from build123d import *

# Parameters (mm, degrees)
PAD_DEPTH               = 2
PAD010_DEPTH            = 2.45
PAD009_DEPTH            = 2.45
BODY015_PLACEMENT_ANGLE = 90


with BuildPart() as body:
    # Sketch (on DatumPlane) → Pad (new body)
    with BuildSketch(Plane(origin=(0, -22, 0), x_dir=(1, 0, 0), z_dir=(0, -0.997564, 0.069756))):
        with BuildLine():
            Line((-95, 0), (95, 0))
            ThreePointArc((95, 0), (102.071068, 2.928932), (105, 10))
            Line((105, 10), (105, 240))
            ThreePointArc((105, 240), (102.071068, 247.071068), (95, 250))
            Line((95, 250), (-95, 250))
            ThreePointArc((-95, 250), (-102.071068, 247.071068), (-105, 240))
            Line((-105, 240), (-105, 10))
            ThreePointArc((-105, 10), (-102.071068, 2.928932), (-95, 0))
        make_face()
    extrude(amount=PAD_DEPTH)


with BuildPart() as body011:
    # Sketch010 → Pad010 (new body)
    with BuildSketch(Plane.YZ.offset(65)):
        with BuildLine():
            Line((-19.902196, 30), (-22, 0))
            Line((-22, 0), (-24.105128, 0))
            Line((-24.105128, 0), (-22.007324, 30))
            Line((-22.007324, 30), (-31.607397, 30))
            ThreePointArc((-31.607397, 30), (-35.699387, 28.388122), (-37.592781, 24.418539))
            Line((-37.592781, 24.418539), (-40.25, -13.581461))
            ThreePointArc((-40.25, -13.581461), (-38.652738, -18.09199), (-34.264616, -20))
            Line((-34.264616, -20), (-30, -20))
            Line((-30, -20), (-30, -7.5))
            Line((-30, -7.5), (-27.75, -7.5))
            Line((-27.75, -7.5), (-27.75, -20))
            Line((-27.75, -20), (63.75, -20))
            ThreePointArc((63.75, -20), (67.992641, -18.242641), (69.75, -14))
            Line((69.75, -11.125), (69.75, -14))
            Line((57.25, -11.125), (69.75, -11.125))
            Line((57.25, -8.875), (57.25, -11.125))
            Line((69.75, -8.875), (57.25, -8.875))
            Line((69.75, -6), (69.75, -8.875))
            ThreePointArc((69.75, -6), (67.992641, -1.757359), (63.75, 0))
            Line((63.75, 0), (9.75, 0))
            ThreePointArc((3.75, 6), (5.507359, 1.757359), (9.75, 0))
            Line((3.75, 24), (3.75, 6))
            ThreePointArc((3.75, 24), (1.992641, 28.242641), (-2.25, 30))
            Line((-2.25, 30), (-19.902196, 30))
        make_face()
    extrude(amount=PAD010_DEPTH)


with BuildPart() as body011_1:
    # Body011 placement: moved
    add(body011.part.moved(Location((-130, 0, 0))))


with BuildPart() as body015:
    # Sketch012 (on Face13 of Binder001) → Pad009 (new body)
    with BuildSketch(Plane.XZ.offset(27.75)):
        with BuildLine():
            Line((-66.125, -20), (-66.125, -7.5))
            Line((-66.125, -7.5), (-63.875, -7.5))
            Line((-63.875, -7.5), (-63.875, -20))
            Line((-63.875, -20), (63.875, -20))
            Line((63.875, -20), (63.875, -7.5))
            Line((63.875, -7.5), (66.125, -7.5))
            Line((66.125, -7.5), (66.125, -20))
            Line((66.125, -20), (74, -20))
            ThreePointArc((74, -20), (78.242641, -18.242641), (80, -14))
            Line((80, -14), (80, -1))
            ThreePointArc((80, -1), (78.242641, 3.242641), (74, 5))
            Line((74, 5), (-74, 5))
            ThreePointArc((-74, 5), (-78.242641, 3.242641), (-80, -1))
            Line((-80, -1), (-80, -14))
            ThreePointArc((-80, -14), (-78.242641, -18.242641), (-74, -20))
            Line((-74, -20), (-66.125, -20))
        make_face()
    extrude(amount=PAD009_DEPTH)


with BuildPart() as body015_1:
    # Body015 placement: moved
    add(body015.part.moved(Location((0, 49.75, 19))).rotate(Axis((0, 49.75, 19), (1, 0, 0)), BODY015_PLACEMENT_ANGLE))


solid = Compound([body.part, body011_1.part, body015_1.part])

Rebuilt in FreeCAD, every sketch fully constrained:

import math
import FreeCAD as App
import Part
import Sketcher
from FreeCAD import Vector
Q = App.Units.Quantity

doc = App.newDocument("Part")
body = doc.addObject("PartDesign::Body", "Body")

sketch1 = body.newObject("Sketcher::SketchObject", "Sketch")
sketch1.Placement = App.Placement(Vector(0, -22, 0), App.Rotation(Vector(1, 0, 0), Vector(0, 0.069756006, 0.997564083), Vector(0, -0.997564083, 0.069756006), "ZXY"))
sketch1.addGeometry(Part.LineSegment(Vector(-95, 0, 0), Vector(95, 0, 0)), False)
sketch1.addGeometry(Part.ArcOfCircle(Part.Circle(Vector(95, 10, 0), Vector(0, 0, 1), 10), math.radians(-90), math.radians(0)), False)
sketch1.addGeometry(Part.LineSegment(Vector(105, 10, 0), Vector(105, 240, 0)), False)
sketch1.addGeometry(Part.ArcOfCircle(Part.Circle(Vector(95, 240, 0), Vector(0, 0, 1), 10), math.radians(0), math.radians(90)), False)
sketch1.addGeometry(Part.LineSegment(Vector(95, 250, 0), Vector(-95, 250, 0)), False)
sketch1.addGeometry(Part.ArcOfCircle(Part.Circle(Vector(-95, 240, 0), Vector(0, 0, 1), 10), math.radians(90), math.radians(180)), False)
sketch1.addGeometry(Part.LineSegment(Vector(-105, 240, 0), Vector(-105, 10, 0)), False)
sketch1.addGeometry(Part.ArcOfCircle(Part.Circle(Vector(-95, 10, 0), Vector(0, 0, 1), 10), math.radians(180), math.radians(270)), False)
sketch1.addConstraint(Sketcher.Constraint("Tangent", 0, 2, 1, 1))
sketch1.addConstraint(Sketcher.Constraint("Tangent", 1, 2, 2, 1))
sketch1.addConstraint(Sketcher.Constraint("Tangent", 2, 2, 3, 1))
sketch1.addConstraint(Sketcher.Constraint("Tangent", 3, 2, 4, 1))
sketch1.addConstraint(Sketcher.Constraint("Tangent", 4, 2, 5, 1))
sketch1.addConstraint(Sketcher.Constraint("Tangent", 5, 2, 6, 1))
sketch1.addConstraint(Sketcher.Constraint("Tangent", 6, 2, 7, 1))
sketch1.addConstraint(Sketcher.Constraint("Tangent", 7, 2, 0, 1))
sketch1.addConstraint(Sketcher.Constraint("Horizontal", 0))
sketch1.addConstraint(Sketcher.Constraint("Vertical", 2))
sketch1.addConstraint(Sketcher.Constraint("Horizontal", 4))
sketch1.addConstraint(Sketcher.Constraint("Vertical", 6))
sketch1.addConstraint(Sketcher.Constraint("Equal", 1, 3))
sketch1.addConstraint(Sketcher.Constraint("Equal", 3, 5))
sketch1.addConstraint(Sketcher.Constraint("Equal", 5, 7))
sketch1.addConstraint(Sketcher.Constraint("Symmetric", 0, 2, 7, 2, -1, 1))
sketch1.addConstraint(Sketcher.Constraint("Radius", 1, Q("9.999999 mm")))
sketch1.addConstraint(Sketcher.Constraint("DistanceX", 0, 1, 0, 2, Q("190 mm")))
sketch1.addConstraint(Sketcher.Constraint("DistanceY", 2, 1, 2, 2, Q("230 mm")))
pad1 = body.newObject("PartDesign::Pad", "Pad")
pad1.Profile = sketch1
pad1.Length = 2
body2 = doc.addObject("PartDesign::Body", "Body001")

sketch2 = body2.newObject("Sketcher::SketchObject", "Sketch001")
sketch2.AttachmentSupport = (doc.getObject("YZ_Plane001"), [""])
sketch2.MapMode = "FlatFace"
sketch2.AttachmentOffset = App.Placement(Vector(0, 0, 65), App.Rotation())
sketch2.addGeometry(Part.LineSegment(Vector(-19.9, 30, 0), Vector(-22, 0, 0)), False)
sketch2.addGeometry(Part.LineSegment(Vector(-22, 0, 0), Vector(-24.1, 0, 0)), False)
sketch2.addGeometry(Part.LineSegment(Vector(-24.1, 0, 0), Vector(-22, 30, 0)), False)
sketch2.addGeometry(Part.LineSegment(Vector(-22, 30, 0), Vector(-31.6, 30, 0)), False)
sketch2.addGeometry(Part.ArcOfCircle(Part.Circle(Vector(-31.6, 24, 0), Vector(0, 0, 1), 6), math.radians(90), math.radians(176)), False)
sketch2.addGeometry(Part.LineSegment(Vector(-37.6, 24.4, 0), Vector(-40.2, -13.6, 0)), False)
sketch2.addGeometry(Part.ArcOfCircle(Part.Circle(Vector(-34.3, -14, 0), Vector(0, 0, 1), 6), math.radians(176), math.radians(270)), False)
sketch2.addGeometry(Part.LineSegment(Vector(-34.3, -20, 0), Vector(-30, -20, 0)), False)
sketch2.addGeometry(Part.LineSegment(Vector(-30, -20, 0), Vector(-30, -7.5, 0)), False)
sketch2.addGeometry(Part.LineSegment(Vector(-30, -7.5, 0), Vector(-27.8, -7.5, 0)), False)
sketch2.addGeometry(Part.LineSegment(Vector(-27.8, -7.5, 0), Vector(-27.8, -20, 0)), False)
sketch2.addGeometry(Part.LineSegment(Vector(-27.8, -20, 0), Vector(63.8, -20, 0)), False)
sketch2.addGeometry(Part.ArcOfCircle(Part.Circle(Vector(63.8, -14, 0), Vector(0, 0, 1), 6), math.radians(-90), math.radians(0)), False)
sketch2.addGeometry(Part.LineSegment(Vector(69.8, -14, 0), Vector(69.8, -11.1, 0)), False)
sketch2.addGeometry(Part.LineSegment(Vector(69.8, -11.1, 0), Vector(57.2, -11.1, 0)), False)
sketch2.addGeometry(Part.LineSegment(Vector(57.2, -11.1, 0), Vector(57.2, -8.9, 0)), False)
sketch2.addGeometry(Part.LineSegment(Vector(57.2, -8.9, 0), Vector(69.8, -8.9, 0)), False)
sketch2.addGeometry(Part.LineSegment(Vector(69.8, -8.9, 0), Vector(69.8, -6, 0)), False)
sketch2.addGeometry(Part.ArcOfCircle(Part.Circle(Vector(63.8, -6, 0), Vector(0, 0, 1), 6), math.radians(0), math.radians(90)), False)
sketch2.addGeometry(Part.LineSegment(Vector(63.8, 0, 0), Vector(9.8, 0, 0)), False)
sketch2.addGeometry(Part.ArcOfCircle(Part.Circle(Vector(9.7, 6, 0), Vector(0, 0, 1), 6), math.radians(180), math.radians(270)), False)
sketch2.addGeometry(Part.LineSegment(Vector(3.8, 6, 0), Vector(3.8, 24, 0)), False)
sketch2.addGeometry(Part.ArcOfCircle(Part.Circle(Vector(-2.2, 24, 0), Vector(0, 0, 1), 6), math.radians(0), math.radians(90)), False)
sketch2.addGeometry(Part.LineSegment(Vector(-2.2, 30, 0), Vector(-19.9, 30, 0)), False)
sketch2.addConstraint(Sketcher.Constraint("Coincident", 0, 2, 1, 1))
sketch2.addConstraint(Sketcher.Constraint("Coincident", 1, 2, 2, 1))
sketch2.addConstraint(Sketcher.Constraint("Coincident", 2, 2, 3, 1))
sketch2.addConstraint(Sketcher.Constraint("Tangent", 3, 2, 4, 1))
sketch2.addConstraint(Sketcher.Constraint("Tangent", 4, 2, 5, 1))
sketch2.addConstraint(Sketcher.Constraint("Tangent", 5, 2, 6, 1))
sketch2.addConstraint(Sketcher.Constraint("Tangent", 6, 2, 7, 1))
sketch2.addConstraint(Sketcher.Constraint("Coincident", 7, 2, 8, 1))
sketch2.addConstraint(Sketcher.Constraint("Coincident", 8, 2, 9, 1))
sketch2.addConstraint(Sketcher.Constraint("Coincident", 9, 2, 10, 1))
sketch2.addConstraint(Sketcher.Constraint("Coincident", 10, 2, 11, 1))
sketch2.addConstraint(Sketcher.Constraint("Tangent", 11, 2, 12, 1))
sketch2.addConstraint(Sketcher.Constraint("Tangent", 12, 2, 13, 1))
sketch2.addConstraint(Sketcher.Constraint("Coincident", 13, 2, 14, 1))
sketch2.addConstraint(Sketcher.Constraint("Coincident", 14, 2, 15, 1))
sketch2.addConstraint(Sketcher.Constraint("Coincident", 15, 2, 16, 1))
sketch2.addConstraint(Sketcher.Constraint("Coincident", 16, 2, 17, 1))
sketch2.addConstraint(Sketcher.Constraint("Tangent", 17, 2, 18, 1))
sketch2.addConstraint(Sketcher.Constraint("Tangent", 18, 2, 19, 1))
sketch2.addConstraint(Sketcher.Constraint("Tangent", 19, 2, 20, 2))
sketch2.addConstraint(Sketcher.Constraint("Tangent", 20, 1, 21, 1))
sketch2.addConstraint(Sketcher.Constraint("Tangent", 21, 2, 22, 1))
sketch2.addConstraint(Sketcher.Constraint("Tangent", 22, 2, 23, 1))
sketch2.addConstraint(Sketcher.Constraint("Coincident", 23, 2, 0, 1))
sketch2.addConstraint(Sketcher.Constraint("Horizontal", 1))
sketch2.addConstraint(Sketcher.Constraint("Horizontal", 3))
sketch2.addConstraint(Sketcher.Constraint("Horizontal", 7))
sketch2.addConstraint(Sketcher.Constraint("Vertical", 8))
sketch2.addConstraint(Sketcher.Constraint("Horizontal", 9))
sketch2.addConstraint(Sketcher.Constraint("Vertical", 10))
sketch2.addConstraint(Sketcher.Constraint("Horizontal", 11))
sketch2.addConstraint(Sketcher.Constraint("Vertical", 13))
sketch2.addConstraint(Sketcher.Constraint("Horizontal", 14))
sketch2.addConstraint(Sketcher.Constraint("Vertical", 15))
sketch2.addConstraint(Sketcher.Constraint("Horizontal", 16))
sketch2.addConstraint(Sketcher.Constraint("Vertical", 17))
sketch2.addConstraint(Sketcher.Constraint("Horizontal", 19))
sketch2.addConstraint(Sketcher.Constraint("Vertical", 21))
sketch2.addConstraint(Sketcher.Constraint("Horizontal", 23))
sketch2.addConstraint(Sketcher.Constraint("Equal", 4, 6))
sketch2.addConstraint(Sketcher.Constraint("Equal", 6, 12))
sketch2.addConstraint(Sketcher.Constraint("Equal", 12, 18))
sketch2.addConstraint(Sketcher.Constraint("Equal", 18, 20))
sketch2.addConstraint(Sketcher.Constraint("Equal", 20, 22))
sketch2.addConstraint(Sketcher.Constraint("PointOnObject", 0, 2, -1))
sketch2.addConstraint(Sketcher.Constraint("PointOnObject", 18, 2, -1))
sketch2.addConstraint(Sketcher.Constraint("Parallel", 0, 2))
sketch2.addConstraint(Sketcher.Constraint("Parallel", 2, 5))
sketch2.addConstraint(Sketcher.Constraint("Horizontal", 6, 3, 12, 3))
sketch2.addConstraint(Sketcher.Constraint("Horizontal", 4, 3, 22, 3))
sketch2.addConstraint(Sketcher.Constraint("Vertical", 12, 3, 18, 3))
sketch2.addConstraint(Sketcher.Constraint("Equal", 16, 8))
sketch2.addConstraint(Sketcher.Constraint("Equal", 9, 15))
sketch2.addConstraint(Sketcher.Constraint("Equal", 13, 17))
sketch2.addConstraint(Sketcher.Constraint("Radius", 4, Q("6 mm")))
sketch2.addConstraint(Sketcher.Constraint("DistanceX", 19, 2, 19, 1, Q("54 mm")))
sketch2.addConstraint(Sketcher.Constraint("DistanceY", 21, 1, 21, 2, Q("18 mm")))
sketch2.addConstraint(Sketcher.Constraint("Angle", 0, Q("-93.999999 deg")))
sketch2.addConstraint(Sketcher.Constraint("DistanceX", 11, 1, 11, 2, Q("91.5 mm")))
sketch2.addConstraint(Sketcher.Constraint("DistanceX", 14, 2, 14, 1, Q("12.5 mm")))
sketch2.addConstraint(Sketcher.Constraint("DistanceY", 6, 3, -1, 1, Q("14 mm")))
sketch2.addConstraint(Sketcher.Constraint("DistanceX", 0, 2, -1, 1, Q("22 mm")))
sketch2.addConstraint(Sketcher.Constraint("DistanceX", 7, 2, -1, 1, Q("30 mm")))
sketch2.addConstraint(Sketcher.Constraint("DistanceX", 9, 1, 9, 2, Q("2.25 mm")))
sketch2.addConstraint(Sketcher.Constraint("DistanceX", 5, 2, -1, 1, Q("40.25 mm")))
sketch2.addConstraint(Sketcher.Constraint("DistanceX", 1, 2, 1, 1, Q("2.105128 mm")))
pad2 = body2.newObject("PartDesign::Pad", "Pad001")
pad2.Profile = sketch2
pad2.Length = 2.45
body3 = doc.addObject("PartDesign::Body", "Body002")
doc.recompute()

body2.Placement = App.Placement(Vector(-130, 0, 0), App.Rotation(Vector(0, 0, 1), 0))
boolean = body3.newObject("PartDesign::Boolean", "Boolean")
boolean.Type = "Fuse"
boolean.addObjects([body2])
body4 = doc.addObject("PartDesign::Body", "Body003")

sketch3 = body4.newObject("Sketcher::SketchObject", "Sketch002")
sketch3.AttachmentSupport = (doc.getObject("XZ_Plane003"), [""])
sketch3.MapMode = "FlatFace"
sketch3.AttachmentOffset = App.Placement(Vector(0, 0, 27.75), App.Rotation())
sketch3.addGeometry(Part.LineSegment(Vector(-66.1, -20, 0), Vector(-66.1, -7.5, 0)), False)
sketch3.addGeometry(Part.LineSegment(Vector(-66.1, -7.5, 0), Vector(-63.9, -7.5, 0)), False)
sketch3.addGeometry(Part.LineSegment(Vector(-63.9, -7.5, 0), Vector(-63.9, -20, 0)), False)
sketch3.addGeometry(Part.LineSegment(Vector(-63.9, -20, 0), Vector(63.9, -20, 0)), False)
sketch3.addGeometry(Part.LineSegment(Vector(63.9, -20, 0), Vector(63.9, -7.5, 0)), False)
sketch3.addGeometry(Part.LineSegment(Vector(63.9, -7.5, 0), Vector(66.1, -7.5, 0)), False)
sketch3.addGeometry(Part.LineSegment(Vector(66.1, -7.5, 0), Vector(66.1, -20, 0)), False)
sketch3.addGeometry(Part.LineSegment(Vector(66.1, -20, 0), Vector(74, -20, 0)), False)
sketch3.addGeometry(Part.ArcOfCircle(Part.Circle(Vector(74, -14, 0), Vector(0, 0, 1), 6), math.radians(-90), math.radians(0)), False)
sketch3.addGeometry(Part.LineSegment(Vector(80, -14, 0), Vector(80, -1, 0)), False)
sketch3.addGeometry(Part.ArcOfCircle(Part.Circle(Vector(74, -1, 0), Vector(0, 0, 1), 6), math.radians(0), math.radians(90)), False)
sketch3.addGeometry(Part.LineSegment(Vector(74, 5, 0), Vector(-74, 5, 0)), False)
sketch3.addGeometry(Part.ArcOfCircle(Part.Circle(Vector(-74, -1, 0), Vector(0, 0, 1), 6), math.radians(90), math.radians(180)), False)
sketch3.addGeometry(Part.LineSegment(Vector(-80, -1, 0), Vector(-80, -14, 0)), False)
sketch3.addGeometry(Part.ArcOfCircle(Part.Circle(Vector(-74, -14, 0), Vector(0, 0, 1), 6), math.radians(180), math.radians(270)), False)
sketch3.addGeometry(Part.LineSegment(Vector(-74, -20, 0), Vector(-66.1, -20, 0)), False)
sketch3.addConstraint(Sketcher.Constraint("Coincident", 0, 2, 1, 1))
sketch3.addConstraint(Sketcher.Constraint("Coincident", 1, 2, 2, 1))
sketch3.addConstraint(Sketcher.Constraint("Coincident", 2, 2, 3, 1))
sketch3.addConstraint(Sketcher.Constraint("Coincident", 3, 2, 4, 1))
sketch3.addConstraint(Sketcher.Constraint("Coincident", 4, 2, 5, 1))
sketch3.addConstraint(Sketcher.Constraint("Coincident", 5, 2, 6, 1))
sketch3.addConstraint(Sketcher.Constraint("Coincident", 6, 2, 7, 1))
sketch3.addConstraint(Sketcher.Constraint("Tangent", 7, 2, 8, 1))
sketch3.addConstraint(Sketcher.Constraint("Tangent", 8, 2, 9, 1))
sketch3.addConstraint(Sketcher.Constraint("Tangent", 9, 2, 10, 1))
sketch3.addConstraint(Sketcher.Constraint("Tangent", 10, 2, 11, 1))
sketch3.addConstraint(Sketcher.Constraint("Tangent", 11, 2, 12, 1))
sketch3.addConstraint(Sketcher.Constraint("Tangent", 12, 2, 13, 1))
sketch3.addConstraint(Sketcher.Constraint("Tangent", 13, 2, 14, 1))
sketch3.addConstraint(Sketcher.Constraint("Tangent", 14, 2, 15, 1))
sketch3.addConstraint(Sketcher.Constraint("Coincident", 15, 2, 0, 1))
sketch3.addConstraint(Sketcher.Constraint("Vertical", 0))
sketch3.addConstraint(Sketcher.Constraint("Horizontal", 1))
sketch3.addConstraint(Sketcher.Constraint("Vertical", 2))
sketch3.addConstraint(Sketcher.Constraint("Horizontal", 3))
sketch3.addConstraint(Sketcher.Constraint("Vertical", 4))
sketch3.addConstraint(Sketcher.Constraint("Horizontal", 5))
sketch3.addConstraint(Sketcher.Constraint("Vertical", 6))
sketch3.addConstraint(Sketcher.Constraint("Horizontal", 7))
sketch3.addConstraint(Sketcher.Constraint("Vertical", 9))
sketch3.addConstraint(Sketcher.Constraint("Horizontal", 11))
sketch3.addConstraint(Sketcher.Constraint("Vertical", 13))
sketch3.addConstraint(Sketcher.Constraint("Horizontal", 15))
sketch3.addConstraint(Sketcher.Constraint("Equal", 8, 10))
sketch3.addConstraint(Sketcher.Constraint("Equal", 10, 12))
sketch3.addConstraint(Sketcher.Constraint("Equal", 12, 14))
sketch3.addConstraint(Sketcher.Constraint("Symmetric", 8, 3, 14, 3, -2))
sketch3.addConstraint(Sketcher.Constraint("Symmetric", 1, 2, 4, 2, -2))
sketch3.addConstraint(Sketcher.Constraint("Horizontal", 3, 2, 6, 2))
sketch3.addConstraint(Sketcher.Constraint("Equal", 1, 5))
sketch3.addConstraint(Sketcher.Constraint("Radius", 8, Q("5.999999 mm")))
sketch3.addConstraint(Sketcher.Constraint("DistanceX", 11, 2, 11, 1, Q("148 mm")))
sketch3.addConstraint(Sketcher.Constraint("DistanceY", 9, 1, 9, 2, Q("13 mm")))
sketch3.addConstraint(Sketcher.Constraint("DistanceY", 0, 1, 0, 2, Q("12.5 mm")))
sketch3.addConstraint(Sketcher.Constraint("DistanceY", 8, 3, -1, 1, Q("14.000001 mm")))
sketch3.addConstraint(Sketcher.Constraint("DistanceX", 0, 2, 3, 2, Q("130 mm")))
sketch3.addConstraint(Sketcher.Constraint("DistanceX", 1, 1, 1, 2, Q("2.25 mm")))
pad3 = body4.newObject("PartDesign::Pad", "Pad002")
pad3.Profile = sketch3
pad3.Length = 2.45
body5 = doc.addObject("PartDesign::Body", "Body004")
doc.recompute()

body4.Placement = App.Placement(Vector(0, 49.75, 19), App.Rotation(Vector(1, 0, 0), 90))
boolean2 = body5.newObject("PartDesign::Boolean", "Boolean001")
boolean2.Type = "Fuse"
boolean2.addObjects([body4])

doc.recompute()
